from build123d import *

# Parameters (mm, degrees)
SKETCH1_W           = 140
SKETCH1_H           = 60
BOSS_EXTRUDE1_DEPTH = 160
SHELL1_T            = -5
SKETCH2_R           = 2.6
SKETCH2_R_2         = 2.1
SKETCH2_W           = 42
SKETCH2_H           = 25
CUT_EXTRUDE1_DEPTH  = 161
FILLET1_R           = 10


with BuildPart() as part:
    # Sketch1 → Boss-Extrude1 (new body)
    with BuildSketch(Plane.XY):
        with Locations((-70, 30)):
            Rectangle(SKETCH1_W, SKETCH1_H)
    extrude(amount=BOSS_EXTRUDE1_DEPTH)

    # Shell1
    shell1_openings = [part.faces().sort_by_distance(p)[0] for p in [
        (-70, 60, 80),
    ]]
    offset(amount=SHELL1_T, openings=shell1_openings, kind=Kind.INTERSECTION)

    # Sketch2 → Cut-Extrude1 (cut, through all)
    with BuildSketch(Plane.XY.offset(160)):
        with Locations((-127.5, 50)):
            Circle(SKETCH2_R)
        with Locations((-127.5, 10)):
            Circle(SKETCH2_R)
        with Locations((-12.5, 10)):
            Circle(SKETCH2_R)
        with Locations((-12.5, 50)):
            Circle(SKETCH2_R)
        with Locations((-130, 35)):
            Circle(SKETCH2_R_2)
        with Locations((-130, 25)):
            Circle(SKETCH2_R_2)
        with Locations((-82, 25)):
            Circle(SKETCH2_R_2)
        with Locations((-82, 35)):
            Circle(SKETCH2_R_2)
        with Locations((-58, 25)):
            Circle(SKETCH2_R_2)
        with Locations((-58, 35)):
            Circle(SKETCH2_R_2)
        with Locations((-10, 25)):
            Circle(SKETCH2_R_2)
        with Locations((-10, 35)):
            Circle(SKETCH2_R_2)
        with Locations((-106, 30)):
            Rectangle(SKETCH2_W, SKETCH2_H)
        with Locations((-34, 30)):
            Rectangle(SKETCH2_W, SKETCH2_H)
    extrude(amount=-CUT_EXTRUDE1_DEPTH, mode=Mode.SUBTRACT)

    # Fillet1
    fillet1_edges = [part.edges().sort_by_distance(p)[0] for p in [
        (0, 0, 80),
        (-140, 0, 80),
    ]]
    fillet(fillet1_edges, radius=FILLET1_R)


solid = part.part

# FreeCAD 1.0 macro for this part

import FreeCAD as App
import Part
import Sketcher

V = App.Vector
Q = App.Units.Quantity


def edges_at(feature, points):
    """Names of the edges that pass closest to the given points."""
    edges = feature.Shape.Edges
    near = lambda p: min(range(len(edges)), key=lambda i: edges[i].distToShape(Part.Vertex(*p))[0])
    return sorted({f"Edge{near(p) + 1}" for p in points})


def faces_at(feature, points):
    """Names of the faces that lie closest to the given points."""
    faces = feature.Shape.Faces
    near = lambda p: min(range(len(faces)), key=lambda i: faces[i].distToShape(Part.Vertex(*p))[0])
    return sorted({f"Face{near(p) + 1}" for p in points})

doc = App.newDocument("Part")
body = doc.addObject("PartDesign::Body", "Body")

# Sketch on XY plane
sketch1 = doc.addObject("Sketcher::SketchObject", "Sketch")
body.addObject(sketch1)
sketch1.AttachmentSupport = (doc.XY_Plane, [""])
sketch1.MapMode = "FlatFace"
sketch1.addGeometry(Part.LineSegment(V(-140, 60, 0), V(-140, 0, 0)), False)
sketch1.addGeometry(Part.LineSegment(V(-140, 0, 0), V(0, 0, 0)), False)
sketch1.addGeometry(Part.LineSegment(V(0, 0, 0), V(0, 60, 0)), False)
sketch1.addGeometry(Part.LineSegment(V(0, 60, 0), V(-140, 60, 0)), False)
sketch1.addConstraint(Sketcher.Constraint("Coincident", 0, 2, 1, 1))
sketch1.addConstraint(Sketcher.Constraint("Coincident", 1, 2, 2, 1))
sketch1.addConstraint(Sketcher.Constraint("Coincident", 2, 2, 3, 1))
sketch1.addConstraint(Sketcher.Constraint("Coincident", 3, 2, 0, 1))
sketch1.addConstraint(Sketcher.Constraint("Vertical", 0))
sketch1.addConstraint(Sketcher.Constraint("Horizontal", 1))
sketch1.addConstraint(Sketcher.Constraint("Vertical", 2))
sketch1.addConstraint(Sketcher.Constraint("Horizontal", 3))
sketch1.addConstraint(Sketcher.Constraint("Coincident", 1, 2, -1, 1))
sketch1.addConstraint(Sketcher.Constraint("DistanceX", 1, 1, 1, 2, Q("140 mm")))
sketch1.addConstraint(Sketcher.Constraint("DistanceY", 0, 2, 0, 1, Q("60 mm")))
pad1 = doc.addObject("PartDesign::Pad", "Pad")
body.addObject(pad1)
pad1.Profile = sketch1
pad1.Length = 160
doc.recompute()

thickness = doc.addObject("PartDesign::Thickness", "Thickness")
body.addObject(thickness)
thickness.Base = (pad1, faces_at(pad1, [(-70, 60, 80)]))
thickness.Value = 5
thickness.Reversed = True
thickness.Join = "Intersection"

# Sketch on XY plane
sketch2 = doc.addObject("Sketcher::SketchObject", "Sketch001")
body.addObject(sketch2)
sketch2.AttachmentSupport = (doc.XY_Plane, [""])
sketch2.MapMode = "FlatFace"
sketch2.AttachmentOffset = App.Placement(V(0, 0, 160), App.Rotation())
sketch2.addGeometry(Part.Circle(V(-127.5, 50, 0), V(0, 0, 1), 2.6), False)
sketch2.addGeometry(Part.Circle(V(-127.5, 10, 0), V(0, 0, 1), 2.6), False)
sketch2.addGeometry(Part.Circle(V(-12.5, 10, 0), V(0, 0, 1), 2.6), False)
sketch2.addGeometry(Part.Circle(V(-12.5, 50, 0), V(0, 0, 1), 2.6), False)
sketch2.addGeometry(Part.Circle(V(-130, 35, 0), V(0, 0, 1), 2.1), False)
sketch2.addGeometry(Part.Circle(V(-130, 25, 0), V(0, 0, 1), 2.1), False)
sketch2.addGeometry(Part.Circle(V(-82, 25, 0), V(0, 0, 1), 2.1), False)
sketch2.addGeometry(Part.Circle(V(-82, 35, 0), V(0, 0, 1), 2.1), False)
sketch2.addGeometry(Part.Circle(V(-58, 25, 0), V(0, 0, 1), 2.1), False)
sketch2.addGeometry(Part.Circle(V(-58, 35, 0), V(0, 0, 1), 2.1), False)
sketch2.addGeometry(Part.Circle(V(-10, 25, 0), V(0, 0, 1), 2.1), False)
sketch2.addGeometry(Part.Circle(V(-10, 35, 0), V(0, 0, 1), 2.1), False)
sketch2.addGeometry(Part.LineSegment(V(-127, 42.5, 0), V(-127, 17.5, 0)), False)
sketch2.addGeometry(Part.LineSegment(V(-127, 17.5, 0), V(-85, 17.5, 0)), False)
sketch2.addGeometry(Part.LineSegment(V(-85, 17.5, 0), V(-85, 42.5, 0)), False)
sketch2.addGeometry(Part.LineSegment(V(-85, 42.5, 0), V(-127, 42.5, 0)), False)
sketch2.addGeometry(Part.LineSegment(V(-55, 42.5, 0), V(-55, 17.5, 0)), False)
sketch2.addGeometry(Part.LineSegment(V(-55, 17.5, 0), V(-13, 17.5, 0)), False)
sketch2.addGeometry(Part.LineSegment(V(-13, 17.5, 0), V(-13, 42.5, 0)), False)
sketch2.addGeometry(Part.LineSegment(V(-13, 42.5, 0), V(-55, 42.5, 0)), False)
sketch2.addConstraint(Sketcher.Constraint("Coincident", 12, 2, 13, 1))
sketch2.addConstraint(Sketcher.Constraint("Coincident", 13, 2, 14, 1))
sketch2.addConstraint(Sketcher.Constraint("Coincident", 14, 2, 15, 1))
sketch2.addConstraint(Sketcher.Constraint("Coincident", 15, 2, 12, 1))
sketch2.addConstraint(Sketcher.Constraint("Coincident", 16, 2, 17, 1))
sketch2.addConstraint(Sketcher.Constraint("Coincident", 17, 2, 18, 1))
sketch2.addConstraint(Sketcher.Constraint("Coincident", 18, 2, 19, 1))
sketch2.addConstraint(Sketcher.Constraint("Coincident", 19, 2, 16, 1))
sketch2.addConstraint(Sketcher.Constraint("Vertical", 12))
sketch2.addConstraint(Sketcher.Constraint("Horizontal", 13))
sketch2.addConstraint(Sketcher.Constraint("Vertical", 14))
sketch2.addConstraint(Sketcher.Constraint("Horizontal", 15))
sketch2.addConstraint(Sketcher.Constraint("Vertical", 16))
sketch2.addConstraint(Sketcher.Constraint("Horizontal", 17))
sketch2.addConstraint(Sketcher.Constraint("Vertical", 18))
sketch2.addConstraint(Sketcher.Constraint("Horizontal", 19))
sketch2.addConstraint(Sketcher.Constraint("Equal", 0, 1))
sketch2.addConstraint(Sketcher.Constraint("Equal", 1, 2))
sketch2.addConstraint(Sketcher.Constraint("Equal", 2, 3))
sketch2.addConstraint(Sketcher.Constraint("Equal", 4, 5))
sketch2.addConstraint(Sketcher.Constraint("Equal", 5, 6))
sketch2.addConstraint(Sketcher.Constraint("Equal", 6, 7))
sketch2.addConstraint(Sketcher.Constraint("Equal", 7, 8))
sketch2.addConstraint(Sketcher.Constraint("Equal", 8, 9))
sketch2.addConstraint(Sketcher.Constraint("Equal", 9, 10))
sketch2.addConstraint(Sketcher.Constraint("Equal", 10, 11))
sketch2.addConstraint(Sketcher.Constraint("Horizontal", 1, 3, 2, 3))
sketch2.addConstraint(Sketcher.Constraint("Horizontal", 0, 3, 3, 3))
sketch2.addConstraint(Sketcher.Constraint("Horizontal", 5, 3, 6, 3))
sketch2.addConstraint(Sketcher.Constraint("Horizontal", 4, 3, 7, 3))
sketch2.addConstraint(Sketcher.Constraint("Horizontal", 6, 3, 8, 3))
sketch2.addConstraint(Sketcher.Constraint("Horizontal", 7, 3, 9, 3))
sketch2.addConstraint(Sketcher.Constraint("Horizontal", 8, 3, 10, 3))
sketch2.addConstraint(Sketcher.Constraint("Horizontal", 9, 3, 11, 3))
sketch2.addConstraint(Sketcher.Constraint("Horizontal", 13, 2, 16, 2))
sketch2.addConstraint(Sketcher.Constraint("Horizontal", 15, 2, 18, 2))
sketch2.addConstraint(Sketcher.Constraint("Vertical", 0, 3, 1, 3))
sketch2.addConstraint(Sketcher.Constraint("Vertical", 2, 3, 3, 3))
sketch2.addConstraint(Sketcher.Constraint("Vertical", 4, 3, 5, 3))
sketch2.addConstraint(Sketcher.Constraint("Vertical", 6, 3, 7, 3))
sketch2.addConstraint(Sketcher.Constraint("Vertical", 8, 3, 9, 3))
sketch2.addConstraint(Sketcher.Constraint("Vertical", 10, 3, 11, 3))
sketch2.addConstraint(Sketcher.Constraint("Equal", 15, 17))
sketch2.addConstraint(Sketcher.Constraint("Diameter", 0, Q("5.2 mm")))
sketch2.addConstraint(Sketcher.Constraint("Diameter", 4, Q("4.2 mm")))
sketch2.addConstraint(Sketcher.Constraint("DistanceX", 13, 1, 13, 2, Q("42 mm")))
sketch2.addConstraint(Sketcher.Constraint("DistanceY", 12, 2, 12, 1, Q("25 mm")))
sketch2.addConstraint(Sketcher.Constraint("DistanceY", -1, 1, 0, 3, Q("50 mm")))
sketch2.addConstraint(Sketcher.Constraint("DistanceY", -1, 1, 1, 3, Q("10 mm")))
sketch2.addConstraint(Sketcher.Constraint("DistanceX", 4, 3, -1, 1, Q("130 mm")))
sketch2.addConstraint(Sketcher.Constraint("DistanceY", -1, 1, 4, 3, Q("35 mm")))
sketch2.addConstraint(Sketcher.Constraint("DistanceY", -1, 1, 5, 3, Q("25 mm")))
sketch2.addConstraint(Sketcher.Constraint("DistanceX", 6, 3, -1, 1, Q("82 mm")))
sketch2.addConstraint(Sketcher.Constraint("DistanceX", 8, 3, -1, 1, Q("58 mm")))
sketch2.addConstraint(Sketcher.Constraint("DistanceX", 10, 3, -1, 1, Q("10 mm")))
sketch2.addConstraint(Sketcher.Constraint("DistanceX", 12, 2, -1, 1, Q("127 mm")))
sketch2.addConstraint(Sketcher.Constraint("DistanceX", 16, 2, -1, 1, Q("55 mm")))
sketch2.addConstraint(Sketcher.Constraint("DistanceX", 1, 3, 2, 3, Q("115 mm")))
sketch2.addConstraint(Sketcher.Constraint("DistanceX", 0, 3, -1, 1, Q("127.5 mm")))
sketch2.addConstraint(Sketcher.Constraint("DistanceY", -1, 1, 12, 2, Q("17.5 mm")))
pocket1 = doc.addObject("PartDesign::Pocket", "Pocket")
body.addObject(pocket1)
pocket1.Profile = sketch2
pocket1.Type = "ThroughAll"
doc.recompute()

fillet = doc.addObject("PartDesign::Fillet", "Fillet")
body.addObject(fillet)
fillet.Base = (pocket1, edges_at(pocket1, [(0, 0, 80), (-140, 0, 80)]))
fillet.Radius = 10

doc.recompute()
